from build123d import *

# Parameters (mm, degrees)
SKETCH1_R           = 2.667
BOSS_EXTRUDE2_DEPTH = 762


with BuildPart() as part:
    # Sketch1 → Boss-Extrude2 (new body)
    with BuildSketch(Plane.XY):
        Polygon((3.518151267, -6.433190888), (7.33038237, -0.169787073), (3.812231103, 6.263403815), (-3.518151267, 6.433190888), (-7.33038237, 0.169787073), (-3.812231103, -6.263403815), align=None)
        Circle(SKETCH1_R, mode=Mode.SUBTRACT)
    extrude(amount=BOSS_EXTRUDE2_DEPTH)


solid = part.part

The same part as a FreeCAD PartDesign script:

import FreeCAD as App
import Part
import Sketcher
from FreeCAD import Vector
Q = App.Units.Quantity


def add_polygon(sketch, points):
    """Adds a closed chain of lines whose ends are joined by coincident constraints."""
    first, n = sketch.GeometryCount, len(points)
    for a, b in zip(points, points[1:] + points[:1]):
        sketch.addGeometry(Part.LineSegment(App.Vector(*a, 0), App.Vector(*b, 0)), False)
    for i in range(n):
        sketch.addConstraint(Sketcher.Constraint("Coincident", first + i, 2, first + (i + 1) % n, 1))

doc = App.newDocument("Part")
params = doc.addObject("Spreadsheet::Sheet", "Params")
for row, (alias, value) in enumerate([
    ("sketch1_diameter", "0.21 in"),
    ("pad1_length", "30 in"),
], start=1):
    params.set(f"A{row}", alias)
    params.set(f"B{row}", "=" + value)
    params.setAlias(f"B{row}", alias)

body = doc.addObject("PartDesign::Body", "Body")

sketch1 = body.newObject("Sketcher::SketchObject", "Sketch")
sketch1.AttachmentSupport = (doc.getObject("XY_Plane"), [""])
sketch1.MapMode = "FlatFace"
add_polygon(sketch1, [(3.5, -6.4), (7.3, -0.2), (3.8, 6.3), (-3.5, 6.4), (-7.3, 0.2), (-3.8, -6.3)])
sketch1.addGeometry(Part.Circle(Vector(0, 0, 0), Vector(0, 0, 1), 2.7), False)
sketch1.addConstraint([
    Sketcher.Constraint("Coincident", 6, 3, -1, 1),
    Sketcher.Constraint("Symmetric", 0, 2, 3, 2, -1, 1),
    Sketcher.Constraint("Symmetric", 1, 2, 4, 2, -1, 1),
    Sketcher.Constraint("Symmetric", 2, 2, 5, 2, -1, 1),
    Sketcher.Constraint("Equal", 0, 1),
    Sketcher.Constraint("Equal", 1, 2),
    Sketcher.Constraint("Diameter", 6, Q("0.21 in")),
    Sketcher.Constraint("Distance", 0, 7.332348),
    Sketcher.Constraint("DistanceX", -1, 1, 1, 2, 3.812231),
    Sketcher.Constraint("DistanceX", 2, 2, -1, 1, 3.518151),
    Sketcher.Constraint("DistanceY", -1, 1, 2, 2, 6.433191),
])
sketch1.setExpression("Constraints[12]", "Params.sketch1_diameter")
pad1 = body.newObject("PartDesign::Pad", "Pad")
pad1.Profile = sketch1
pad1.setExpression("Length", "Params.pad1_length")

doc.recompute()
